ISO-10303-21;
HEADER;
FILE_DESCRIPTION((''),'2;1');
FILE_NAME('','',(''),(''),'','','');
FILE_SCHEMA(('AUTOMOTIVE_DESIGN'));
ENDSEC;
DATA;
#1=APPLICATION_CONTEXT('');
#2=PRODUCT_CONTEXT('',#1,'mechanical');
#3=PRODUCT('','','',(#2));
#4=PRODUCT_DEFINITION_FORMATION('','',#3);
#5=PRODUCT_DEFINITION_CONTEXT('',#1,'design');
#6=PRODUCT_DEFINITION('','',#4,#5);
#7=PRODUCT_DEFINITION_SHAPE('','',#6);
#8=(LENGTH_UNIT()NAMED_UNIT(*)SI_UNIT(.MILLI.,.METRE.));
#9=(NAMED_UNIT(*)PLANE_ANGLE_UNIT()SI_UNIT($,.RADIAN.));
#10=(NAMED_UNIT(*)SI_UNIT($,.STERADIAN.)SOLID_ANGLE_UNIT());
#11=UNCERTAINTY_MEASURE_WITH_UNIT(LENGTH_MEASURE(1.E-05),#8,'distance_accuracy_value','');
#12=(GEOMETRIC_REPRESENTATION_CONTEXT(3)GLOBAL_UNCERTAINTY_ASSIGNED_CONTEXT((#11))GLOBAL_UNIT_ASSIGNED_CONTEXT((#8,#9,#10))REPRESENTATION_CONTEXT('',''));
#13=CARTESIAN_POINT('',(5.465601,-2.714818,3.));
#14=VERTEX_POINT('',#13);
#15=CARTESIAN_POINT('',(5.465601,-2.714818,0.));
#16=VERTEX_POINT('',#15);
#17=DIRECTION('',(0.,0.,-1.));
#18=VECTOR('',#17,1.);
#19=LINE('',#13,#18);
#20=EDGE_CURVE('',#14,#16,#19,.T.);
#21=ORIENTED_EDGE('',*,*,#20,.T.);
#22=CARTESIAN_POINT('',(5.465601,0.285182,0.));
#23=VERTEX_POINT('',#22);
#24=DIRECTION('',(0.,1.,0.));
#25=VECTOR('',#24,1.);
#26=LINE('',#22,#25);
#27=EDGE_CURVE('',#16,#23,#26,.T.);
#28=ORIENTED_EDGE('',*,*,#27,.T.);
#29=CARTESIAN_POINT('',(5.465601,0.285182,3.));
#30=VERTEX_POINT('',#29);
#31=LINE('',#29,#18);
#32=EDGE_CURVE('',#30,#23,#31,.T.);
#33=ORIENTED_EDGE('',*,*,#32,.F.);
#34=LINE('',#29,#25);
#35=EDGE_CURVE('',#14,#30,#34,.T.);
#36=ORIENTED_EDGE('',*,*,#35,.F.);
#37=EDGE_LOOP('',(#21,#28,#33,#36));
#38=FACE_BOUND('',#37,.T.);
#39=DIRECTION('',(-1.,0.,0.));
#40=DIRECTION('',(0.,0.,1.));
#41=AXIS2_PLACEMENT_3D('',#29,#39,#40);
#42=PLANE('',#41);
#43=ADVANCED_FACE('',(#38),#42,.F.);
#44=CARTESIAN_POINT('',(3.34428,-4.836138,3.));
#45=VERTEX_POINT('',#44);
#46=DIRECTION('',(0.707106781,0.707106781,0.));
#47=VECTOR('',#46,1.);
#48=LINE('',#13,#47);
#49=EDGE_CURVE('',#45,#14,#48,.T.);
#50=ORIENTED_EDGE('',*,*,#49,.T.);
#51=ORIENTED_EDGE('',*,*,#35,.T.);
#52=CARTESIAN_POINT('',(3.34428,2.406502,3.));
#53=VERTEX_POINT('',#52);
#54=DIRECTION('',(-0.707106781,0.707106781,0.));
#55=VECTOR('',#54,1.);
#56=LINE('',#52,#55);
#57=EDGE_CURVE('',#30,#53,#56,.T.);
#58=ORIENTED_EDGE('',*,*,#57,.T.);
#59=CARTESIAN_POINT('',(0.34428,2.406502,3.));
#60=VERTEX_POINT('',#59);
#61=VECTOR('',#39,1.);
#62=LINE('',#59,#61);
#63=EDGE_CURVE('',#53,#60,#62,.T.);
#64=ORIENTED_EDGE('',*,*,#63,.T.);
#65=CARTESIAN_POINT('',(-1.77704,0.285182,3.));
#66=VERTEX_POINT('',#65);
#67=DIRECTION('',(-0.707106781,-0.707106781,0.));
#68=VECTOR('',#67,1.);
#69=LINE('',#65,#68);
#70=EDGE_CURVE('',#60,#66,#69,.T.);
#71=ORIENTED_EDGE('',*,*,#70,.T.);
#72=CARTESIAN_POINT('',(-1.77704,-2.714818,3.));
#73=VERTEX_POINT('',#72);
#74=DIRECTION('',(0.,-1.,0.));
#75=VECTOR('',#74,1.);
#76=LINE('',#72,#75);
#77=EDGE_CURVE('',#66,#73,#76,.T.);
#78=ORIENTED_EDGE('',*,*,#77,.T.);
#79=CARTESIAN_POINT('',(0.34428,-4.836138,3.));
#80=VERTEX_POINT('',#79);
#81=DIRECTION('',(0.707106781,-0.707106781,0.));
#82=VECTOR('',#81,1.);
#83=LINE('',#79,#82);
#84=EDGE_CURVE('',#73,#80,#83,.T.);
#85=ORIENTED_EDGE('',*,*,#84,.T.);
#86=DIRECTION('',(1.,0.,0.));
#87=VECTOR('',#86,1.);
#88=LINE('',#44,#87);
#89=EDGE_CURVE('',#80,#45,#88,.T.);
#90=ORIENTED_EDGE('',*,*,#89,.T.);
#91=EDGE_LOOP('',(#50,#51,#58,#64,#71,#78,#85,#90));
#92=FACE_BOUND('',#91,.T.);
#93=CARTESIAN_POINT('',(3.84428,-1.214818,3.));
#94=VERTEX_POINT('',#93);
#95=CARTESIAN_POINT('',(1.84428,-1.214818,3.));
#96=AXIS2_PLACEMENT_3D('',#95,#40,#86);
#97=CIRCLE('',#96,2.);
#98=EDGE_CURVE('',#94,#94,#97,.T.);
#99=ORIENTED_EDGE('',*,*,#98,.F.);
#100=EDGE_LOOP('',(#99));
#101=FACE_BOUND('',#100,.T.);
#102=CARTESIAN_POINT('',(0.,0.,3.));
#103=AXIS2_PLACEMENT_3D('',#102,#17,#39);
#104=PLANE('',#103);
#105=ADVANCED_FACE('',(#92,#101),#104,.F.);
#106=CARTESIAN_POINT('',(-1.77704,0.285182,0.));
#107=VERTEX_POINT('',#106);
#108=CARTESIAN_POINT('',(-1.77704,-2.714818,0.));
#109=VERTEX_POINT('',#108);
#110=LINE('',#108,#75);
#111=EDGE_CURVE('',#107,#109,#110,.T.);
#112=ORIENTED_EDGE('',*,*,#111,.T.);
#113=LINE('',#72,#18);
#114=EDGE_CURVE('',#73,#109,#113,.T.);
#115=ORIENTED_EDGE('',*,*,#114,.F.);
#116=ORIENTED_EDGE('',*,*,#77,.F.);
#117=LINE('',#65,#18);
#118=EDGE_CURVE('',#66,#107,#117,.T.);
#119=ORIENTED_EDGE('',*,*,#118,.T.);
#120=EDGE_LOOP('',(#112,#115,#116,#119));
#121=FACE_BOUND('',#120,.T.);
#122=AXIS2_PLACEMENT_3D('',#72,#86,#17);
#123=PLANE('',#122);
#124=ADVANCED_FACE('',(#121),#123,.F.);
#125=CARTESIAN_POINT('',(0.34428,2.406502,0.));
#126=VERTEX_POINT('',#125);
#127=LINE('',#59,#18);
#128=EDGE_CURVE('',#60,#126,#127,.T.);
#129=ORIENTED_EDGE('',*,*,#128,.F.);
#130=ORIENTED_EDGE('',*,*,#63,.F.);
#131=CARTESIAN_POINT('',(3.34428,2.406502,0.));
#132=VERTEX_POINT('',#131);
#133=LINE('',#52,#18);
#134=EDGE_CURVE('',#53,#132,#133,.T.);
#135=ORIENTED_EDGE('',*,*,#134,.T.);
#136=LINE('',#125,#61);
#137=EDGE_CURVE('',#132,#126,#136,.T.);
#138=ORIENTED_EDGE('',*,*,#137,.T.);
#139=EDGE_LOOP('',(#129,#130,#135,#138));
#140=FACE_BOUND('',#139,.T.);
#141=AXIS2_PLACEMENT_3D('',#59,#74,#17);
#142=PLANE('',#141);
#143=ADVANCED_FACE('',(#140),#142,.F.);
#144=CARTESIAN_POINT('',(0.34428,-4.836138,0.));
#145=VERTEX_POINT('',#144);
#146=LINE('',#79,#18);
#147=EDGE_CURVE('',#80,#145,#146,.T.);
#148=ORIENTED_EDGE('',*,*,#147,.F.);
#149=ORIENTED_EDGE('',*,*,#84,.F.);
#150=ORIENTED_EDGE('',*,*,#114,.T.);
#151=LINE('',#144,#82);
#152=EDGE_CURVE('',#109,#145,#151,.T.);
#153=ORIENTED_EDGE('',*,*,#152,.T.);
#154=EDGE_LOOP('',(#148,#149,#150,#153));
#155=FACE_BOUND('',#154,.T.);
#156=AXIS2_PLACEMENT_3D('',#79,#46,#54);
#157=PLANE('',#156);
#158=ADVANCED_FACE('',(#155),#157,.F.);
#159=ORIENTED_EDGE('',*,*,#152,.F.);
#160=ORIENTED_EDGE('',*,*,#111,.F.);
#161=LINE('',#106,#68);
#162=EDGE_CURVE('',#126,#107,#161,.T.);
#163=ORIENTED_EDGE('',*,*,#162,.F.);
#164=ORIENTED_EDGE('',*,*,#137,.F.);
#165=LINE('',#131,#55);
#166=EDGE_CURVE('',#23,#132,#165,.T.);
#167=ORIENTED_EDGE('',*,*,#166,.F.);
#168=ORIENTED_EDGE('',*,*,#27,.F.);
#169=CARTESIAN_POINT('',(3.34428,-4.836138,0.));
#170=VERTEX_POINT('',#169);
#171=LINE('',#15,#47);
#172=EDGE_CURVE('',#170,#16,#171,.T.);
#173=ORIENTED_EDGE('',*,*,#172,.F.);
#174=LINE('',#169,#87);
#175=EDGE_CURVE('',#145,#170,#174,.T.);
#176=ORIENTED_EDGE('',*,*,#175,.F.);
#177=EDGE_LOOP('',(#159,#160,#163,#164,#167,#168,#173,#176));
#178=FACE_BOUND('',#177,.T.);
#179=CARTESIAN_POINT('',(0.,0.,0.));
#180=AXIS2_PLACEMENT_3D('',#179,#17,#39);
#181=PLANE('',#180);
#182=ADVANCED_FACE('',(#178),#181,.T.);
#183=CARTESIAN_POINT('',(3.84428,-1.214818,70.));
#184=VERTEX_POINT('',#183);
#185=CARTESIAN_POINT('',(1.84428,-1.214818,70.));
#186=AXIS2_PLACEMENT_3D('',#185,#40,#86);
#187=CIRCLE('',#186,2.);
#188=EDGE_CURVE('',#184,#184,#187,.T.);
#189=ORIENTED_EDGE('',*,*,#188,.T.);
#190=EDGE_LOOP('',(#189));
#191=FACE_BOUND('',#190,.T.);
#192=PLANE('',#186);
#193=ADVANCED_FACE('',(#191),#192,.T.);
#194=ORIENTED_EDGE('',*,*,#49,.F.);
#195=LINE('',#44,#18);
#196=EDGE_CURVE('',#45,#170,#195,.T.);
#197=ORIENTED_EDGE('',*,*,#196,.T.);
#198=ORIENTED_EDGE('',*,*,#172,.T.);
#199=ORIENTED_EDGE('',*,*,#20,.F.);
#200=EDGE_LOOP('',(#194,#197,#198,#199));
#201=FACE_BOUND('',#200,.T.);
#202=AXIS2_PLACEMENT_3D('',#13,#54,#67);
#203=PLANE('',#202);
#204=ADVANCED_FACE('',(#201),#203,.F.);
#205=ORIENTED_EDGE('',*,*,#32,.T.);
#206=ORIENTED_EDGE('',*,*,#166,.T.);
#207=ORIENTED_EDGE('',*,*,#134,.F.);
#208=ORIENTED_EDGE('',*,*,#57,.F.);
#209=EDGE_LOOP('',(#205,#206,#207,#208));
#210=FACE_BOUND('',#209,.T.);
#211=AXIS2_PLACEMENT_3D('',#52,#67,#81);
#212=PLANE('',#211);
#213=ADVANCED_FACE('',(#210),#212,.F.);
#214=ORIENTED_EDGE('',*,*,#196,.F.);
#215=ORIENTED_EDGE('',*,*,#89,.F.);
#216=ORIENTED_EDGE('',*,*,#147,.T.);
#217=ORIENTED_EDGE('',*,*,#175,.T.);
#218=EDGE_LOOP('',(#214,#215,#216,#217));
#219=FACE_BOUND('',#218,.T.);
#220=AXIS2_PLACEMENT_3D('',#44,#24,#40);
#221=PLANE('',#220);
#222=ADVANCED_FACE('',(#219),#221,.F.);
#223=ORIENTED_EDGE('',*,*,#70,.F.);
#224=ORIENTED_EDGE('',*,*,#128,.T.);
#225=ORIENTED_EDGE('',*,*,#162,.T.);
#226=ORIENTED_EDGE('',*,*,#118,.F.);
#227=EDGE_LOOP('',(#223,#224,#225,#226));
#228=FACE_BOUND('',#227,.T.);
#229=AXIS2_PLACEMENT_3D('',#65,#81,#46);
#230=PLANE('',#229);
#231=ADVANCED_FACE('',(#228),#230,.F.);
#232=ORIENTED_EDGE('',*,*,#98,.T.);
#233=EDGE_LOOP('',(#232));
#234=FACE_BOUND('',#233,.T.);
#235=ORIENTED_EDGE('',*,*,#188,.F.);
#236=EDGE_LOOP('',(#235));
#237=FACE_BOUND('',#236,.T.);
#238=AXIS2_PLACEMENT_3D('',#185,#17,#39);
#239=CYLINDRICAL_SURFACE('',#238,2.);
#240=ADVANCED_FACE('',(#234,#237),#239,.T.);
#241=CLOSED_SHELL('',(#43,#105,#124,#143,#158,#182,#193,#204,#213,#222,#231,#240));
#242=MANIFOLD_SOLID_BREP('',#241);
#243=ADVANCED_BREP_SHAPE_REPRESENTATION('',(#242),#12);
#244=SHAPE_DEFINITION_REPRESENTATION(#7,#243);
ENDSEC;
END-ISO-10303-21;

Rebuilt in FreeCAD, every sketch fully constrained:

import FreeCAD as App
import Part
import Sketcher
from FreeCAD import Vector
Q = App.Units.Quantity


def add_polygon(sketch, points):
    """Adds a closed chain of lines whose ends are joined by coincident constraints."""
    first, n = sketch.GeometryCount, len(points)
    for a, b in zip(points, points[1:] + points[:1]):
        sketch.addGeometry(Part.LineSegment(App.Vector(*a, 0), App.Vector(*b, 0)), False)
    for i in range(n):
        sketch.addConstraint(Sketcher.Constraint("Coincident", first + i, 2, first + (i + 1) % n, 1))

doc = App.newDocument("Part")
body = doc.addObject("PartDesign::Body", "Body")

# Sketch on XY plane
sketch1 = body.newObject("Sketcher::SketchObject", "Sketch")
sketch1.AttachmentSupport = (doc.getObject("XY_Plane"), [""])
sketch1.MapMode = "FlatFace"
add_polygon(sketch1, [(0.34428, 2.406502), (-1.77704, 0.285182), (-1.77704, -2.714818), (0.34428, -4.836138), (3.34428, -4.836138), (5.465601, -2.714818), (5.465601, 0.285182), (3.34428, 2.406502)])  # lines 0-7
sketch1.addConstraint(Sketcher.Constraint("Vertical", 1))
sketch1.addConstraint(Sketcher.Constraint("Horizontal", 3))
sketch1.addConstraint(Sketcher.Constraint("Vertical", 5))
sketch1.addConstraint(Sketcher.Constraint("Horizontal", 7))
sketch1.addConstraint(Sketcher.Constraint("Perpendicular", 0, 2))
sketch1.addConstraint(Sketcher.Constraint("Perpendicular", 2, 4))
sketch1.addConstraint(Sketcher.Constraint("Perpendicular", 4, 6))
sketch1.addConstraint(Sketcher.Constraint("Horizontal", 1, 2, 4, 2))
sketch1.addConstraint(Sketcher.Constraint("Horizontal", 0, 2, 5, 2))
sketch1.addConstraint(Sketcher.Constraint("Vertical", 3, 2, 6, 2))
sketch1.addConstraint(Sketcher.Constraint("Vertical", 2, 2, 7, 2))
sketch1.addConstraint(Sketcher.Constraint("Equal", 7, 1))
sketch1.addConstraint(Sketcher.Constraint("DistanceX", 3, 1, 3, 2, Q("3 mm")))
sketch1.addConstraint(Sketcher.Constraint("Distance", 0, Q("3 mm")))
sketch1.addConstraint(Sketcher.Constraint("DistanceX", -1, 1, 4, 2, Q("5.465601 mm")))
sketch1.addConstraint(Sketcher.Constraint("DistanceY", 2, 2, -1, 1, Q("4.836138 mm")))
pad1 = body.newObject("PartDesign::Pad", "Pad")
pad1.Profile = sketch1
pad1.Length = 3

# Sketch on XY plane
sketch2 = body.newObject("Sketcher::SketchObject", "Sketch001")
sketch2.AttachmentSupport = (doc.getObject("XY_Plane"), [""])
sketch2.MapMode = "FlatFace"
sketch2.AttachmentOffset = App.Placement(Vector(0, 0, 3), App.Rotation())
sketch2.addGeometry(Part.Circle(Vector(1.84428, -1.214818, 0), Vector(0, 0, 1), 2), False)
sketch2.addConstraint(Sketcher.Constraint("Diameter", 0, Q("4 mm")))
sketch2.addConstraint(Sketcher.Constraint("DistanceX", -1, 1, 0, 3, Q("1.84428 mm")))
sketch2.addConstraint(Sketcher.Constraint("DistanceY", 0, 3, -1, 1, Q("1.214818 mm")))
pad2 = body.newObject("PartDesign::Pad", "Pad001")
pad2.Profile = sketch2
pad2.Length = 67

doc.recompute()
